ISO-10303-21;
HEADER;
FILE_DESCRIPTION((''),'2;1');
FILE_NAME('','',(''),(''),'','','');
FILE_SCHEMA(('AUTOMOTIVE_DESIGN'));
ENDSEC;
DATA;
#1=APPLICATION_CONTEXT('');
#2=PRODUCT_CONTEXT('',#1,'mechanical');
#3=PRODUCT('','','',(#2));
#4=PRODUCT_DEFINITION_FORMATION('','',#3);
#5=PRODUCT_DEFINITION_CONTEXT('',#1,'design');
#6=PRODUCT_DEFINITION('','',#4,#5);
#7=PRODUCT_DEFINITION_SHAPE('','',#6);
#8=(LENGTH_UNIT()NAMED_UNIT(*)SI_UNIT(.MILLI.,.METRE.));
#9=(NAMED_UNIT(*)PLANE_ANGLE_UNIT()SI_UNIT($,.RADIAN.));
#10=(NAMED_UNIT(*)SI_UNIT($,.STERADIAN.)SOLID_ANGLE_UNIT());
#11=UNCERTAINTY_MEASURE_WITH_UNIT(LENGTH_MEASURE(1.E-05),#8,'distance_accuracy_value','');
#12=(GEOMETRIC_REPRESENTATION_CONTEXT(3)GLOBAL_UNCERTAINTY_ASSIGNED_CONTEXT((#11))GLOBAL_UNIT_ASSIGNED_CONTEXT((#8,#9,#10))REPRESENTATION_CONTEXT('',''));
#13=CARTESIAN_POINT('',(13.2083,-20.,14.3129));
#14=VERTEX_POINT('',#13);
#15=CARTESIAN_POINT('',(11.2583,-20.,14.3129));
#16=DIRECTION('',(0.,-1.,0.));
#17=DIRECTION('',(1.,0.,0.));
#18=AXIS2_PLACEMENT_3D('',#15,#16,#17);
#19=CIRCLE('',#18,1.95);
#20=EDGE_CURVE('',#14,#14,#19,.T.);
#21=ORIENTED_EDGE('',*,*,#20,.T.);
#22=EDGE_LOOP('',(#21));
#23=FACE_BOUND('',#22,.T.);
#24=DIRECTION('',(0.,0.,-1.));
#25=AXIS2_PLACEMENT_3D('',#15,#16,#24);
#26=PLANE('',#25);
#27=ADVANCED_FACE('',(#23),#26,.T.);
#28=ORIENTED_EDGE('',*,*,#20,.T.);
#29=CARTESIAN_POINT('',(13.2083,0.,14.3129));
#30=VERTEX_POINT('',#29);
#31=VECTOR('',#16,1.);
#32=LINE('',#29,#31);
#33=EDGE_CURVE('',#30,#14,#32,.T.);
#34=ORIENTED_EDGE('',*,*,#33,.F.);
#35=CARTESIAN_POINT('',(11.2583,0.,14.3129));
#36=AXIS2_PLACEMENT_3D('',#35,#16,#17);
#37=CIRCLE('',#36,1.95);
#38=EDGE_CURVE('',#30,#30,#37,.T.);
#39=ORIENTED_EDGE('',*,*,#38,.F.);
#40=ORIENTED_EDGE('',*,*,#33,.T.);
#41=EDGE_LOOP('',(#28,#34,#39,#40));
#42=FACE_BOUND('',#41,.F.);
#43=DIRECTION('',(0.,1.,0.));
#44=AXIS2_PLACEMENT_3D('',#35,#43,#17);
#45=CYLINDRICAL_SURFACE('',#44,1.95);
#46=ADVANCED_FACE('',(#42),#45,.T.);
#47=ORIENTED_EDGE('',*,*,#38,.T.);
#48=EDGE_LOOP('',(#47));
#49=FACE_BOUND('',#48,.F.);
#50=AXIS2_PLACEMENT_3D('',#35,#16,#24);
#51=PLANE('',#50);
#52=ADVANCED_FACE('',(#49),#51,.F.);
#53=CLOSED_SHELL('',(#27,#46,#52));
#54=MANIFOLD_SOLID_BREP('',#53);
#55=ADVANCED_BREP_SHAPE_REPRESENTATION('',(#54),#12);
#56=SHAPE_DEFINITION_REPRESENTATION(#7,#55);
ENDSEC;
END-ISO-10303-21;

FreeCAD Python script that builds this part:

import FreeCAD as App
import Part
import Sketcher
from FreeCAD import Vector
Q = App.Units.Quantity

doc = App.newDocument("Part")
body = doc.addObject("PartDesign::Body", "Body")

sketch1 = doc.addObject("Sketcher::SketchObject", "Sketch")
body.addObject(sketch1)
sketch1.AttachmentSupport = (doc.XZ_Plane, [""])
sketch1.MapMode = "FlatFace"
sketch1.addGeometry(Part.Circle(Vector(11.3, 14.3, 0), Vector(0, 0, 1), 1.9), False)
sketch1.addConstraint([
    Sketcher.Constraint("Diameter", 0, Q("3.9 mm")),
    Sketcher.Constraint("DistanceY", -1, 1, 0, 3, Q("14.313 mm")),
    Sketcher.Constraint("DistanceX", -1, 1, 0, 3, Q("11.2583 mm")),
])
pad1 = doc.addObject("PartDesign::Pad", "Pad")
body.addObject(pad1)
pad1.Profile = sketch1
pad1.Length = 20

doc.recompute()
